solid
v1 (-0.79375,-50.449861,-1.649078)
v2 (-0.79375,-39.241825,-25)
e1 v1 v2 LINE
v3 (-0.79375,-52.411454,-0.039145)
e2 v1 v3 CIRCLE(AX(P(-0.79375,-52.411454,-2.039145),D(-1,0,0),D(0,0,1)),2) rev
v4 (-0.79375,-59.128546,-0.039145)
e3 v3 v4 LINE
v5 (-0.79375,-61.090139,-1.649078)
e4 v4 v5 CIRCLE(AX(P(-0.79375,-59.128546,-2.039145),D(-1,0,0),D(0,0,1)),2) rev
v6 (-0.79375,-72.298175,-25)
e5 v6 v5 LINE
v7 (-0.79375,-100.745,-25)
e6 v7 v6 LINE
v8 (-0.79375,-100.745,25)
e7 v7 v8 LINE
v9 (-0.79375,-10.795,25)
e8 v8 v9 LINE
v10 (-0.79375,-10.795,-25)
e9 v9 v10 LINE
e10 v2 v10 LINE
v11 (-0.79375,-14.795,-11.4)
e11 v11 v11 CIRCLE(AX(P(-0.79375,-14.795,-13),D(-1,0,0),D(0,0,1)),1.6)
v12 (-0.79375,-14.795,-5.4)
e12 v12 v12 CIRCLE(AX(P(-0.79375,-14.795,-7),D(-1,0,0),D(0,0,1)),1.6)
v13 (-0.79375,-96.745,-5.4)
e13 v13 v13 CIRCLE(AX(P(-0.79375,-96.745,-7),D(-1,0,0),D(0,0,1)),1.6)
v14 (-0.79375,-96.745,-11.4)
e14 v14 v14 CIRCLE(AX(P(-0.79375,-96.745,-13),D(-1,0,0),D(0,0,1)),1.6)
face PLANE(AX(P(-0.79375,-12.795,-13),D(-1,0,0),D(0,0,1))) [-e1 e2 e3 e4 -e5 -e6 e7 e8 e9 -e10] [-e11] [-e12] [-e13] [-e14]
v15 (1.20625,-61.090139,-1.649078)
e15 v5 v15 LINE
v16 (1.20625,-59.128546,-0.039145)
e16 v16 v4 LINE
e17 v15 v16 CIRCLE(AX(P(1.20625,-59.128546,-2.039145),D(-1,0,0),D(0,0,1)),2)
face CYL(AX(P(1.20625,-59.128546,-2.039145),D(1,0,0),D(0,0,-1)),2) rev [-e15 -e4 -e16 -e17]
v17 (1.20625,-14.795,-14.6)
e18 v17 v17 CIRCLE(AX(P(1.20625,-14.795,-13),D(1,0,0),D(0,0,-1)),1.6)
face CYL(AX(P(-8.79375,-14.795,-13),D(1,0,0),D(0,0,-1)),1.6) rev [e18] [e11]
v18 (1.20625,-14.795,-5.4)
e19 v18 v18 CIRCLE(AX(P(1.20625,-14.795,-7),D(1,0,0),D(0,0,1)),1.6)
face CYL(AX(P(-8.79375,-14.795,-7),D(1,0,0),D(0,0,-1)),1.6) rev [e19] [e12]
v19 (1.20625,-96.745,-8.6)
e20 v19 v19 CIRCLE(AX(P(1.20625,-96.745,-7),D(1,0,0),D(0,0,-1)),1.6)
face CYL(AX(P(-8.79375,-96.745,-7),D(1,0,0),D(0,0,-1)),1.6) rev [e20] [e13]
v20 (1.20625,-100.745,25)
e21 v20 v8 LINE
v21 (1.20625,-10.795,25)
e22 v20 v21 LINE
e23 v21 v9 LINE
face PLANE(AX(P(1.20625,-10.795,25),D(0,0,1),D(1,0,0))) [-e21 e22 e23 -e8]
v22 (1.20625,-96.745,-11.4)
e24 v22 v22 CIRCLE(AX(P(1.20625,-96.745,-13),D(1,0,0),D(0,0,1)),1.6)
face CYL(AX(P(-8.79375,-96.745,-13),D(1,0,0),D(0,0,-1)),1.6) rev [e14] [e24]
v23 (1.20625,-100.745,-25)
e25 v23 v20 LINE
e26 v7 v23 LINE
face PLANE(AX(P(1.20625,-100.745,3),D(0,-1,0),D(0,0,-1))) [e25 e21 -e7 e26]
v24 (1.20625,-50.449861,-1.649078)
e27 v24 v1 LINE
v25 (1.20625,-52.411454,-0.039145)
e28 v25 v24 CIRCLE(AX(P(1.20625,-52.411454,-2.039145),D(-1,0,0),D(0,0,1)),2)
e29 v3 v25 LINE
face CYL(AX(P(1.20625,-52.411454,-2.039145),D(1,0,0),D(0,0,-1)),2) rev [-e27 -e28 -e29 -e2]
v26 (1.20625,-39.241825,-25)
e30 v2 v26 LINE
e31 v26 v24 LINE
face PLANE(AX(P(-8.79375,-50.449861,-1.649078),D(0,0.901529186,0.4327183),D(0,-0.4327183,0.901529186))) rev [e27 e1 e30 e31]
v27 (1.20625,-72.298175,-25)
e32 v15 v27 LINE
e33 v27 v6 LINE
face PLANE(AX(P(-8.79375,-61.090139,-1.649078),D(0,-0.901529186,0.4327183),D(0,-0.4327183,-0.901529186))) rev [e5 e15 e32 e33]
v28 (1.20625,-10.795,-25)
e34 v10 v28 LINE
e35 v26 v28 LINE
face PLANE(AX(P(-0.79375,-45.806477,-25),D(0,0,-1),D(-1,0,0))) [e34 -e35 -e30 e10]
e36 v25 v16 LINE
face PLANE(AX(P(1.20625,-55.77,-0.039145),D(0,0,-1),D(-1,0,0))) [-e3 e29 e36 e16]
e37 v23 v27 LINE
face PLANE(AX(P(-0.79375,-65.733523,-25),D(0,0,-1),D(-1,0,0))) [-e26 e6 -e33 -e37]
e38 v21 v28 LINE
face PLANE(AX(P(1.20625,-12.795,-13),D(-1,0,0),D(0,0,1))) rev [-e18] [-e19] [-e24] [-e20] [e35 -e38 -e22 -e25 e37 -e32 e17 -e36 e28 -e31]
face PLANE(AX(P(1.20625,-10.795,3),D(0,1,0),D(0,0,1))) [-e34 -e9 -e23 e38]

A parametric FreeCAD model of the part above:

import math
import FreeCAD as App
import Part
import Sketcher
Q = App.Units.Quantity


def edges_at(feature, points):
    """Names of the edges that pass closest to the given points."""
    edges = feature.Shape.Edges
    near = lambda p: min(range(len(edges)), key=lambda i: edges[i].distToShape(Part.Vertex(*p))[0])
    return sorted({f"Edge{near(p) + 1}" for p in points})


def add_polygon(sketch, points):
    """Adds a closed chain of lines whose ends are joined by coincident constraints."""
    first, n = sketch.GeometryCount, len(points)
    for a, b in zip(points, points[1:] + points[:1]):
        sketch.addGeometry(Part.LineSegment(App.Vector(*a, 0), App.Vector(*b, 0)), False)
    for i in range(n):
        sketch.addConstraint(Sketcher.Constraint("Coincident", first + i, 2, first + (i + 1) % n, 1))

doc = App.newDocument("Part")
body = doc.addObject("PartDesign::Body", "Body")

# Sketch on YZ plane
sketch1 = body.newObject("Sketcher::SketchObject", "Sketch")
sketch1.AttachmentSupport = (doc.getObject("YZ_Plane"), [""])
sketch1.MapMode = "FlatFace"
sketch1.AttachmentOffset = App.Placement(App.Vector(0, 0, -0.79375), App.Rotation())
sketch1.addGeometry(Part.ArcOfCircle(Part.Circle(App.Vector(-12.8, 3, 0), App.Vector(0, 0, 1), 2), math.radians(0), math.radians(90)), False)
sketch1.addGeometry(Part.LineSegment(App.Vector(-10.8, 3, 0), App.Vector(-10.8, -13, 0)), False)
sketch1.addGeometry(Part.ArcOfCircle(Part.Circle(App.Vector(-12.8, -13, 0), App.Vector(0, 0, 1), 2), math.radians(-90), math.radians(0)), False)
sketch1.addGeometry(Part.LineSegment(App.Vector(-12.8, -15, 0), App.Vector(-47.8, -15, 0)), False)
sketch1.addGeometry(Part.LineSegment(App.Vector(-47.8, -15, 0), App.Vector(-50.8, 0, 0)), False)
sketch1.addGeometry(Part.LineSegment(App.Vector(-50.8, 0, 0), App.Vector(-60.8, 0, 0)), False)
sketch1.addGeometry(Part.LineSegment(App.Vector(-60.8, 0, 0), App.Vector(-63.7, -15, 0)), False)
sketch1.addGeometry(Part.LineSegment(App.Vector(-63.7, -15, 0), App.Vector(-98.7, -15, 0)), False)
sketch1.addGeometry(Part.ArcOfCircle(Part.Circle(App.Vector(-98.7, -13, 0), App.Vector(0, 0, 1), 2), math.radians(-180), math.radians(-90)), False)
sketch1.addGeometry(Part.LineSegment(App.Vector(-100.7, -13, 0), App.Vector(-100.7, 3, 0)), False)
sketch1.addGeometry(Part.ArcOfCircle(Part.Circle(App.Vector(-98.7, 3, 0), App.Vector(0, 0, 1), 2), math.radians(90), math.radians(180)), False)
sketch1.addGeometry(Part.LineSegment(App.Vector(-98.7, 5, 0), App.Vector(-12.8, 5, 0)), False)
sketch1.addConstraint(Sketcher.Constraint("Tangent", 0, 1, 1, 1))
sketch1.addConstraint(Sketcher.Constraint("Tangent", 1, 2, 2, 2))
sketch1.addConstraint(Sketcher.Constraint("Tangent", 2, 1, 3, 1))
sketch1.addConstraint(Sketcher.Constraint("Coincident", 3, 2, 4, 1))
sketch1.addConstraint(Sketcher.Constraint("Coincident", 4, 2, 5, 1))
sketch1.addConstraint(Sketcher.Constraint("Coincident", 5, 2, 6, 1))
sketch1.addConstraint(Sketcher.Constraint("Coincident", 6, 2, 7, 1))
sketch1.addConstraint(Sketcher.Constraint("Tangent", 7, 2, 8, 2))
sketch1.addConstraint(Sketcher.Constraint("Tangent", 8, 1, 9, 1))
sketch1.addConstraint(Sketcher.Constraint("Tangent", 9, 2, 10, 2))
sketch1.addConstraint(Sketcher.Constraint("Tangent", 10, 1, 11, 1))
sketch1.addConstraint(Sketcher.Constraint("Tangent", 11, 2, 0, 2))
sketch1.addConstraint(Sketcher.Constraint("Vertical", 1))
sketch1.addConstraint(Sketcher.Constraint("Horizontal", 3))
sketch1.addConstraint(Sketcher.Constraint("Horizontal", 5))
sketch1.addConstraint(Sketcher.Constraint("Horizontal", 7))
sketch1.addConstraint(Sketcher.Constraint("Vertical", 9))
sketch1.addConstraint(Sketcher.Constraint("Horizontal", 11))
sketch1.addConstraint(Sketcher.Constraint("Equal", 0, 2))
sketch1.addConstraint(Sketcher.Constraint("Equal", 2, 8))
sketch1.addConstraint(Sketcher.Constraint("Equal", 8, 10))
sketch1.addConstraint(Sketcher.Constraint("Horizontal", 2, 3, 8, 3))
sketch1.addConstraint(Sketcher.Constraint("Equal", 3, 7))
sketch1.addConstraint(Sketcher.Constraint("Equal", 4, 6))
sketch1.addConstraint(Sketcher.Constraint("Radius", 0, Q("2 mm")))
sketch1.addConstraint(Sketcher.Constraint("DistanceX", 3, 2, 3, 1, Q("35 mm")))
sketch1.addConstraint(Sketcher.Constraint("DistanceX", 5, 2, 5, 1, Q("10 mm")))
sketch1.addConstraint(Sketcher.Constraint("DistanceY", 1, 2, 1, 1, Q("16 mm")))
sketch1.addConstraint(Sketcher.Constraint("DistanceY", -1, 1, 0, 3, Q("3 mm")))
sketch1.addConstraint(Sketcher.Constraint("DistanceX", 11, 1, 11, 2, Q("85.95 mm")))
sketch1.addConstraint(Sketcher.Constraint("DistanceX", 4, 2, -1, 1, Q("50.77 mm")))
sketch1.addConstraint(Sketcher.Constraint("Distance", 4, Q("15.25378 mm")))
pad1 = body.newObject("PartDesign::Pad", "Pad")
pad1.Profile = sketch1
pad1.Length = 2
doc.recompute()

fillet = body.newObject("PartDesign::Fillet", "Fillet")
fillet.Base = (pad1, edges_at(pad1, [(0.206, -47.795, -15)]))
fillet.Radius = 2
doc.recompute()

fillet2 = body.newObject("PartDesign::Fillet", "Fillet001")
fillet2.Base = (fillet, edges_at(fillet, [(0.206, -50.77, -0.039)]))
fillet2.Radius = 2
doc.recompute()

fillet3 = body.newObject("PartDesign::Fillet", "Fillet002")
fillet3.Base = (fillet2, edges_at(fillet2, [(0.206, -60.77, -0.039)]))
fillet3.Radius = 2
doc.recompute()

fillet4 = body.newObject("PartDesign::Fillet", "Fillet003")
fillet4.Base = (fillet3, edges_at(fillet3, [(0.206, -63.745, -15)]))
fillet4.Radius = 2

# Sketch on YZ plane
sketch2 = body.newObject("Sketcher::SketchObject", "Sketch001")
sketch2.AttachmentSupport = (doc.getObject("YZ_Plane"), [""])
sketch2.MapMode = "FlatFace"
sketch2.AttachmentOffset = App.Placement(App.Vector(0, 0, 1.20625), App.Rotation())
add_polygon(sketch2, [(-11, 15), (-101, 15), (-101, 3), (-11, 3)])  # lines 0-3
add_polygon(sketch2, [(-48, -13), (-46, -25), (-11, -25), (-11, -13)])  # lines 4-7
add_polygon(sketch2, [(-66, -25), (-63, -13), (-101, -13), (-101, -25)])  # lines 8-11
sketch2.addConstraint(Sketcher.Constraint("Horizontal", 0))
sketch2.addConstraint(Sketcher.Constraint("Vertical", 1))
sketch2.addConstraint(Sketcher.Constraint("Horizontal", 2))
sketch2.addConstraint(Sketcher.Constraint("Vertical", 3))
sketch2.addConstraint(Sketcher.Constraint("Horizontal", 5))
sketch2.addConstraint(Sketcher.Constraint("Vertical", 6))
sketch2.addConstraint(Sketcher.Constraint("Vertical", 10))
sketch2.addConstraint(Sketcher.Constraint("Horizontal", 11))
sketch2.addConstraint(Sketcher.Constraint("Horizontal", 7, 2, 8, 2))
sketch2.addConstraint(Sketcher.Constraint("Horizontal", 6, 2, 9, 2))
sketch2.addConstraint(Sketcher.Constraint("Horizontal", 5, 2, 10, 2))
sketch2.addConstraint(Sketcher.Constraint("Vertical", 3, 2, 5, 2))
sketch2.addConstraint(Sketcher.Constraint("Vertical", 1, 2, 9, 2))
sketch2.addConstraint(Sketcher.Constraint("Equal", 5, 11))
sketch2.addConstraint(Sketcher.Constraint("Equal", 3, 6))
sketch2.addConstraint(Sketcher.Constraint("Equal", 4, 8))
sketch2.addConstraint(Sketcher.Constraint("DistanceY", 1, 2, 1, 1, Q("12 mm")))
sketch2.addConstraint(Sketcher.Constraint("DistanceY", -1, 1, 0, 2, Q("15 mm")))
sketch2.addConstraint(Sketcher.Constraint("DistanceY", 4, 2, -1, 1, Q("25 mm")))
sketch2.addConstraint(Sketcher.Constraint("DistanceX", 0, 2, 0, 1, Q("89.95 mm")))
sketch2.addConstraint(Sketcher.Constraint("DistanceX", 0, 2, -1, 1, Q("100.745 mm")))
sketch2.addConstraint(Sketcher.Constraint("Distance", 4, Q("11.837249 mm")))
sketch2.addConstraint(Sketcher.Constraint("DistanceX", 5, 1, 5, 2, Q("35.011477 mm")))
sketch2.addConstraint(Sketcher.Constraint("DistanceX", 7, 2, -1, 1, Q("48.115139 mm")))
pad2 = body.newObject("PartDesign::Pad", "Pad001")
pad2.Profile = sketch2
pad2.Length = 2
pad2.Reversed = True

# Sketch on YZ plane
sketch3 = body.newObject("Sketcher::SketchObject", "Sketch002")
sketch3.AttachmentSupport = (doc.getObject("YZ_Plane"), [""])
sketch3.MapMode = "FlatFace"
sketch3.AttachmentOffset = App.Placement(App.Vector(0, 0, 1.20625), App.Rotation())
add_polygon(sketch3, [(-50, -2), (-46, -25), (-39, -25)])  # lines 0-2
add_polygon(sketch3, [(-61, -2), (-72, -25), (-66, -25)])  # lines 3-5
sketch3.addConstraint(Sketcher.Constraint("Horizontal", 1))
sketch3.addConstraint(Sketcher.Constraint("Horizontal", 4))
sketch3.addConstraint(Sketcher.Constraint("Horizontal", 1, 2, 3, 2))
sketch3.addConstraint(Sketcher.Constraint("Horizontal", 2, 2, 5, 2))
sketch3.addConstraint(Sketcher.Constraint("Equal", 1, 4))
sketch3.addConstraint(Sketcher.Constraint("Equal", 2, 3))
sketch3.addConstraint(Sketcher.Constraint("DistanceY", 0, 2, -1, 1, Q("25 mm")))
sketch3.addConstraint(Sketcher.Constraint("DistanceX", 1, 1, 1, 2, Q("6.564652 mm")))
sketch3.addConstraint(Sketcher.Constraint("Distance", 0, Q("23.80812 mm")))
sketch3.addConstraint(Sketcher.Constraint("Distance", 2, Q("25.90146 mm")))
sketch3.addConstraint(Sketcher.Constraint("DistanceX", 2, 2, -1, 1, Q("50.449861 mm")))
sketch3.addConstraint(Sketcher.Constraint("DistanceX", 5, 2, -1, 1, Q("61.090139 mm")))
pocket1 = body.newObject("PartDesign::Pocket", "Pocket")
pocket1.Profile = sketch3
pocket1.Length = 10

# Sketch on YZ plane
sketch4 = body.newObject("Sketcher::SketchObject", "Sketch003")
sketch4.AttachmentSupport = (doc.getObject("YZ_Plane"), [""])
sketch4.MapMode = "FlatFace"
sketch4.AttachmentOffset = App.Placement(App.Vector(0, 0, 1.20625), App.Rotation())
sketch4.addGeometry(Part.Circle(App.Vector(-14.8, -13, 0), App.Vector(0, 0, 1), 1.6), False)
sketch4.addGeometry(Part.Circle(App.Vector(-14.8, -7, 0), App.Vector(0, 0, 1), 1.6), False)
sketch4.addGeometry(Part.Circle(App.Vector(-96.7, -13, 0), App.Vector(0, 0, 1), 1.6), False)
sketch4.addGeometry(Part.Circle(App.Vector(-96.7, -7, 0), App.Vector(0, 0, 1), 1.6), False)
sketch4.addConstraint(Sketcher.Constraint("Equal", 0, 1))
sketch4.addConstraint(Sketcher.Constraint("Equal", 1, 2))
sketch4.addConstraint(Sketcher.Constraint("Equal", 2, 3))
sketch4.addConstraint(Sketcher.Constraint("Horizontal", 0, 3, 2, 3))
sketch4.addConstraint(Sketcher.Constraint("Horizontal", 1, 3, 3, 3))
sketch4.addConstraint(Sketcher.Constraint("Vertical", 0, 3, 1, 3))
sketch4.addConstraint(Sketcher.Constraint("Vertical", 2, 3, 3, 3))
sketch4.addConstraint(Sketcher.Constraint("Diameter", 0, Q("3.2 mm")))
sketch4.addConstraint(Sketcher.Constraint("DistanceY", 0, 3, -1, 1, Q("13 mm")))
sketch4.addConstraint(Sketcher.Constraint("DistanceY", 1, 3, -1, 1, Q("7 mm")))
sketch4.addConstraint(Sketcher.Constraint("DistanceX", 2, 3, 0, 3, Q("81.95 mm")))
sketch4.addConstraint(Sketcher.Constraint("DistanceX", 0, 3, -1, 1, Q("14.795 mm")))
pocket2 = body.newObject("PartDesign::Pocket", "Pocket001")
pocket2.Profile = sketch4
pocket2.Length = 10

# Sketch on YZ plane
sketch5 = body.newObject("Sketcher::SketchObject", "Sketch004")
sketch5.AttachmentSupport = (doc.getObject("YZ_Plane"), [""])
sketch5.MapMode = "FlatFace"
sketch5.AttachmentOffset = App.Placement(App.Vector(0, 0, -0.79375), App.Rotation())
add_polygon(sketch5, [(-11, 15), (-101, 15), (-101, 25), (-11, 25)])  # lines 0-3
sketch5.addConstraint(Sketcher.Constraint("Horizontal", 0))
sketch5.addConstraint(Sketcher.Constraint("Vertical", 1))
sketch5.addConstraint(Sketcher.Constraint("Horizontal", 2))
sketch5.addConstraint(Sketcher.Constraint("Vertical", 3))
sketch5.addConstraint(Sketcher.Constraint("DistanceY", 1, 1, 1, 2, Q("10 mm")))
sketch5.addConstraint(Sketcher.Constraint("DistanceY", -1, 1, 0, 2, Q("15 mm")))
sketch5.addConstraint(Sketcher.Constraint("DistanceX", 0, 2, 0, 1, Q("89.95 mm")))
sketch5.addConstraint(Sketcher.Constraint("DistanceX", 0, 2, -1, 1, Q("100.745 mm")))
pad3 = body.newObject("PartDesign::Pad", "Pad002")
pad3.Profile = sketch5
pad3.Length = 2

doc.recompute()
